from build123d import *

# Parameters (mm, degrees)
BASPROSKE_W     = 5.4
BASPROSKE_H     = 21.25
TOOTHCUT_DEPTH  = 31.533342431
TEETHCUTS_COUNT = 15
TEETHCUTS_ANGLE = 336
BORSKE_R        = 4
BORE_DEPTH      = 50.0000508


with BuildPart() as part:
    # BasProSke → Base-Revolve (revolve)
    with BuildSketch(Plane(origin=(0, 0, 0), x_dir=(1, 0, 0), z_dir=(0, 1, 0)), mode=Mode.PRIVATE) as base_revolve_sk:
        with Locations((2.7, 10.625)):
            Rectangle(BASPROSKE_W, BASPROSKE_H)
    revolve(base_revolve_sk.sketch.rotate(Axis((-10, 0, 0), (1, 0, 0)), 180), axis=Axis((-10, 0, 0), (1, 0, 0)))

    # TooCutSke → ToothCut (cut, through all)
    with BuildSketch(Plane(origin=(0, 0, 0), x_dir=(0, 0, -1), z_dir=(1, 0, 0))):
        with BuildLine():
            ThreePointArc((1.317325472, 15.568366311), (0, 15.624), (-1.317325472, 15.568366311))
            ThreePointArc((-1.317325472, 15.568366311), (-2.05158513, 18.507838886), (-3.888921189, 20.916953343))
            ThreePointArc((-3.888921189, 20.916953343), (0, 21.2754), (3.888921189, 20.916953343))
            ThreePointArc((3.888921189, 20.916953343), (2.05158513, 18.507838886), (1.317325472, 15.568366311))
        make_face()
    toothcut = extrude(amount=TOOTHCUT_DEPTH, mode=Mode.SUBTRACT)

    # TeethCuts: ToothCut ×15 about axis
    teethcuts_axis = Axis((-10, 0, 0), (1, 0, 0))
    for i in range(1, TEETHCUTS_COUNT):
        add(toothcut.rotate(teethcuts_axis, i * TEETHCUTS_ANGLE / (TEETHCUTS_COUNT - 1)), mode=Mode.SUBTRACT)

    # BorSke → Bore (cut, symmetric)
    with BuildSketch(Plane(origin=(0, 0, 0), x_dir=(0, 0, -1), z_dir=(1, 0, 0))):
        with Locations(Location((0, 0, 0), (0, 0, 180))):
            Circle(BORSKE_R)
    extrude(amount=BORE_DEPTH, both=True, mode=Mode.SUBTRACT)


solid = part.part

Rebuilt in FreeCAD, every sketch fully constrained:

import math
import FreeCAD as App
import Part
import Sketcher
from FreeCAD import Vector
Q = App.Units.Quantity


def add_polygon(sketch, points):
    """Adds a closed chain of lines whose ends are joined by coincident constraints."""
    first, n = sketch.GeometryCount, len(points)
    for a, b in zip(points, points[1:] + points[:1]):
        sketch.addGeometry(Part.LineSegment(App.Vector(*a, 0), App.Vector(*b, 0)), False)
    for i in range(n):
        sketch.addConstraint(Sketcher.Constraint("Coincident", first + i, 2, first + (i + 1) % n, 1))

doc = App.newDocument("Part")
body = doc.addObject("PartDesign::Body", "Body")

sketch1 = body.newObject("Sketcher::SketchObject", "Sketch")
sketch1.AttachmentSupport = (doc.getObject("XZ_Plane"), [""])
sketch1.MapMode = "FlatFace"
add_polygon(sketch1, [(0, -21), (0, 0), (5, 0), (5, -21)])
sketch1.addConstraint([
    Sketcher.Constraint("Vertical", 0),
    Sketcher.Constraint("Horizontal", 1),
    Sketcher.Constraint("Vertical", 2),
    Sketcher.Constraint("Horizontal", 3),
    Sketcher.Constraint("Coincident", 0, 2, -1, 1),
    Sketcher.Constraint("DistanceX", 1, 1, 1, 2, Q("5.4 mm")),
    Sketcher.Constraint("DistanceY", 0, 1, 0, 2, Q("21.25 mm")),
])
revolution = body.newObject("PartDesign::Revolution", "Revolution")
revolution.Profile = sketch1
revolution.ReferenceAxis = (sketch1, ["H_Axis"])
revolution.Angle = 360

sketch2 = body.newObject("Sketcher::SketchObject", "Sketch001")
sketch2.AttachmentSupport = (doc.getObject("YZ_Plane"), [""])
sketch2.MapMode = "FlatFace"
sketch2.addGeometry([
    Part.ArcOfCircle(Part.Circle(Vector(0, 0, 0), Vector(0, 0, 1), 15.6), math.radians(-4.84), math.radians(4.84)),
    Part.ArcOfCircle(Part.Circle(Vector(15.3, -8.8, 0), Vector(0, 0, 1), 7.5), math.radians(41), math.radians(88)),
    Part.ArcOfCircle(Part.Circle(Vector(0, 0, 0), Vector(0, 0, 1), 21.3), math.radians(-11), math.radians(11)),
    Part.ArcOfCircle(Part.Circle(Vector(15.3, 8.8, 0), Vector(0, 0, 1), 7.5), math.radians(-88), math.radians(-41)),
], False)
sketch2.addConstraint([
    Sketcher.Constraint("Coincident", 0, 1, 1, 2),
    Sketcher.Constraint("Coincident", 1, 1, 2, 1),
    Sketcher.Constraint("Coincident", 2, 2, 3, 2),
    Sketcher.Constraint("Coincident", 3, 1, 0, 2),
    Sketcher.Constraint("Coincident", 0, 3, -1, 1),
    Sketcher.Constraint("Coincident", 2, 3, -1, 1),
    Sketcher.Constraint("Equal", 1, 3),
    Sketcher.Constraint("Symmetric", 1, 3, 3, 3, -1),
    Sketcher.Constraint("Radius", 1, Q("7.5 mm")),
    Sketcher.Constraint("Radius", 0, Q("15.624 mm")),
    Sketcher.Constraint("Radius", 2, Q("21.2754 mm")),
    Sketcher.Constraint("DistanceY", 1, 3, -1, 1, Q("8.8109 mm")),
    Sketcher.Constraint("DistanceX", 1, 3, 0, 1, Q("0.3104 mm")),
])
pocket1 = body.newObject("PartDesign::Pocket", "Pocket")
pocket1.Profile = sketch2
pocket1.Type = "ThroughAll"
pocket1.Reversed = True
doc.recompute()

polarpattern = body.newObject("PartDesign::PolarPattern", "PolarPattern")
polarpattern.Originals = [pocket1]
polarpattern.Axis = (doc.getObject("X_Axis"), [""])
polarpattern.Angle = 360
polarpattern.Occurrences = 15
body.Tip = polarpattern

sketch3 = body.newObject("Sketcher::SketchObject", "Sketch002")
sketch3.AttachmentSupport = (doc.getObject("YZ_Plane"), [""])
sketch3.MapMode = "FlatFace"
sketch3.addGeometry(Part.Circle(Vector(0, 0, 0), Vector(0, 0, 1), 4), False)
sketch3.addConstraint([
    Sketcher.Constraint("Coincident", 0, 3, -1, 1),
    Sketcher.Constraint("Diameter", 0, Q("8 mm")),
])
pocket2 = body.newObject("PartDesign::Pocket", "Pocket001")
pocket2.Profile = sketch3
pocket2.Length = 100.000102
pocket2.Midplane = True

doc.recompute()
